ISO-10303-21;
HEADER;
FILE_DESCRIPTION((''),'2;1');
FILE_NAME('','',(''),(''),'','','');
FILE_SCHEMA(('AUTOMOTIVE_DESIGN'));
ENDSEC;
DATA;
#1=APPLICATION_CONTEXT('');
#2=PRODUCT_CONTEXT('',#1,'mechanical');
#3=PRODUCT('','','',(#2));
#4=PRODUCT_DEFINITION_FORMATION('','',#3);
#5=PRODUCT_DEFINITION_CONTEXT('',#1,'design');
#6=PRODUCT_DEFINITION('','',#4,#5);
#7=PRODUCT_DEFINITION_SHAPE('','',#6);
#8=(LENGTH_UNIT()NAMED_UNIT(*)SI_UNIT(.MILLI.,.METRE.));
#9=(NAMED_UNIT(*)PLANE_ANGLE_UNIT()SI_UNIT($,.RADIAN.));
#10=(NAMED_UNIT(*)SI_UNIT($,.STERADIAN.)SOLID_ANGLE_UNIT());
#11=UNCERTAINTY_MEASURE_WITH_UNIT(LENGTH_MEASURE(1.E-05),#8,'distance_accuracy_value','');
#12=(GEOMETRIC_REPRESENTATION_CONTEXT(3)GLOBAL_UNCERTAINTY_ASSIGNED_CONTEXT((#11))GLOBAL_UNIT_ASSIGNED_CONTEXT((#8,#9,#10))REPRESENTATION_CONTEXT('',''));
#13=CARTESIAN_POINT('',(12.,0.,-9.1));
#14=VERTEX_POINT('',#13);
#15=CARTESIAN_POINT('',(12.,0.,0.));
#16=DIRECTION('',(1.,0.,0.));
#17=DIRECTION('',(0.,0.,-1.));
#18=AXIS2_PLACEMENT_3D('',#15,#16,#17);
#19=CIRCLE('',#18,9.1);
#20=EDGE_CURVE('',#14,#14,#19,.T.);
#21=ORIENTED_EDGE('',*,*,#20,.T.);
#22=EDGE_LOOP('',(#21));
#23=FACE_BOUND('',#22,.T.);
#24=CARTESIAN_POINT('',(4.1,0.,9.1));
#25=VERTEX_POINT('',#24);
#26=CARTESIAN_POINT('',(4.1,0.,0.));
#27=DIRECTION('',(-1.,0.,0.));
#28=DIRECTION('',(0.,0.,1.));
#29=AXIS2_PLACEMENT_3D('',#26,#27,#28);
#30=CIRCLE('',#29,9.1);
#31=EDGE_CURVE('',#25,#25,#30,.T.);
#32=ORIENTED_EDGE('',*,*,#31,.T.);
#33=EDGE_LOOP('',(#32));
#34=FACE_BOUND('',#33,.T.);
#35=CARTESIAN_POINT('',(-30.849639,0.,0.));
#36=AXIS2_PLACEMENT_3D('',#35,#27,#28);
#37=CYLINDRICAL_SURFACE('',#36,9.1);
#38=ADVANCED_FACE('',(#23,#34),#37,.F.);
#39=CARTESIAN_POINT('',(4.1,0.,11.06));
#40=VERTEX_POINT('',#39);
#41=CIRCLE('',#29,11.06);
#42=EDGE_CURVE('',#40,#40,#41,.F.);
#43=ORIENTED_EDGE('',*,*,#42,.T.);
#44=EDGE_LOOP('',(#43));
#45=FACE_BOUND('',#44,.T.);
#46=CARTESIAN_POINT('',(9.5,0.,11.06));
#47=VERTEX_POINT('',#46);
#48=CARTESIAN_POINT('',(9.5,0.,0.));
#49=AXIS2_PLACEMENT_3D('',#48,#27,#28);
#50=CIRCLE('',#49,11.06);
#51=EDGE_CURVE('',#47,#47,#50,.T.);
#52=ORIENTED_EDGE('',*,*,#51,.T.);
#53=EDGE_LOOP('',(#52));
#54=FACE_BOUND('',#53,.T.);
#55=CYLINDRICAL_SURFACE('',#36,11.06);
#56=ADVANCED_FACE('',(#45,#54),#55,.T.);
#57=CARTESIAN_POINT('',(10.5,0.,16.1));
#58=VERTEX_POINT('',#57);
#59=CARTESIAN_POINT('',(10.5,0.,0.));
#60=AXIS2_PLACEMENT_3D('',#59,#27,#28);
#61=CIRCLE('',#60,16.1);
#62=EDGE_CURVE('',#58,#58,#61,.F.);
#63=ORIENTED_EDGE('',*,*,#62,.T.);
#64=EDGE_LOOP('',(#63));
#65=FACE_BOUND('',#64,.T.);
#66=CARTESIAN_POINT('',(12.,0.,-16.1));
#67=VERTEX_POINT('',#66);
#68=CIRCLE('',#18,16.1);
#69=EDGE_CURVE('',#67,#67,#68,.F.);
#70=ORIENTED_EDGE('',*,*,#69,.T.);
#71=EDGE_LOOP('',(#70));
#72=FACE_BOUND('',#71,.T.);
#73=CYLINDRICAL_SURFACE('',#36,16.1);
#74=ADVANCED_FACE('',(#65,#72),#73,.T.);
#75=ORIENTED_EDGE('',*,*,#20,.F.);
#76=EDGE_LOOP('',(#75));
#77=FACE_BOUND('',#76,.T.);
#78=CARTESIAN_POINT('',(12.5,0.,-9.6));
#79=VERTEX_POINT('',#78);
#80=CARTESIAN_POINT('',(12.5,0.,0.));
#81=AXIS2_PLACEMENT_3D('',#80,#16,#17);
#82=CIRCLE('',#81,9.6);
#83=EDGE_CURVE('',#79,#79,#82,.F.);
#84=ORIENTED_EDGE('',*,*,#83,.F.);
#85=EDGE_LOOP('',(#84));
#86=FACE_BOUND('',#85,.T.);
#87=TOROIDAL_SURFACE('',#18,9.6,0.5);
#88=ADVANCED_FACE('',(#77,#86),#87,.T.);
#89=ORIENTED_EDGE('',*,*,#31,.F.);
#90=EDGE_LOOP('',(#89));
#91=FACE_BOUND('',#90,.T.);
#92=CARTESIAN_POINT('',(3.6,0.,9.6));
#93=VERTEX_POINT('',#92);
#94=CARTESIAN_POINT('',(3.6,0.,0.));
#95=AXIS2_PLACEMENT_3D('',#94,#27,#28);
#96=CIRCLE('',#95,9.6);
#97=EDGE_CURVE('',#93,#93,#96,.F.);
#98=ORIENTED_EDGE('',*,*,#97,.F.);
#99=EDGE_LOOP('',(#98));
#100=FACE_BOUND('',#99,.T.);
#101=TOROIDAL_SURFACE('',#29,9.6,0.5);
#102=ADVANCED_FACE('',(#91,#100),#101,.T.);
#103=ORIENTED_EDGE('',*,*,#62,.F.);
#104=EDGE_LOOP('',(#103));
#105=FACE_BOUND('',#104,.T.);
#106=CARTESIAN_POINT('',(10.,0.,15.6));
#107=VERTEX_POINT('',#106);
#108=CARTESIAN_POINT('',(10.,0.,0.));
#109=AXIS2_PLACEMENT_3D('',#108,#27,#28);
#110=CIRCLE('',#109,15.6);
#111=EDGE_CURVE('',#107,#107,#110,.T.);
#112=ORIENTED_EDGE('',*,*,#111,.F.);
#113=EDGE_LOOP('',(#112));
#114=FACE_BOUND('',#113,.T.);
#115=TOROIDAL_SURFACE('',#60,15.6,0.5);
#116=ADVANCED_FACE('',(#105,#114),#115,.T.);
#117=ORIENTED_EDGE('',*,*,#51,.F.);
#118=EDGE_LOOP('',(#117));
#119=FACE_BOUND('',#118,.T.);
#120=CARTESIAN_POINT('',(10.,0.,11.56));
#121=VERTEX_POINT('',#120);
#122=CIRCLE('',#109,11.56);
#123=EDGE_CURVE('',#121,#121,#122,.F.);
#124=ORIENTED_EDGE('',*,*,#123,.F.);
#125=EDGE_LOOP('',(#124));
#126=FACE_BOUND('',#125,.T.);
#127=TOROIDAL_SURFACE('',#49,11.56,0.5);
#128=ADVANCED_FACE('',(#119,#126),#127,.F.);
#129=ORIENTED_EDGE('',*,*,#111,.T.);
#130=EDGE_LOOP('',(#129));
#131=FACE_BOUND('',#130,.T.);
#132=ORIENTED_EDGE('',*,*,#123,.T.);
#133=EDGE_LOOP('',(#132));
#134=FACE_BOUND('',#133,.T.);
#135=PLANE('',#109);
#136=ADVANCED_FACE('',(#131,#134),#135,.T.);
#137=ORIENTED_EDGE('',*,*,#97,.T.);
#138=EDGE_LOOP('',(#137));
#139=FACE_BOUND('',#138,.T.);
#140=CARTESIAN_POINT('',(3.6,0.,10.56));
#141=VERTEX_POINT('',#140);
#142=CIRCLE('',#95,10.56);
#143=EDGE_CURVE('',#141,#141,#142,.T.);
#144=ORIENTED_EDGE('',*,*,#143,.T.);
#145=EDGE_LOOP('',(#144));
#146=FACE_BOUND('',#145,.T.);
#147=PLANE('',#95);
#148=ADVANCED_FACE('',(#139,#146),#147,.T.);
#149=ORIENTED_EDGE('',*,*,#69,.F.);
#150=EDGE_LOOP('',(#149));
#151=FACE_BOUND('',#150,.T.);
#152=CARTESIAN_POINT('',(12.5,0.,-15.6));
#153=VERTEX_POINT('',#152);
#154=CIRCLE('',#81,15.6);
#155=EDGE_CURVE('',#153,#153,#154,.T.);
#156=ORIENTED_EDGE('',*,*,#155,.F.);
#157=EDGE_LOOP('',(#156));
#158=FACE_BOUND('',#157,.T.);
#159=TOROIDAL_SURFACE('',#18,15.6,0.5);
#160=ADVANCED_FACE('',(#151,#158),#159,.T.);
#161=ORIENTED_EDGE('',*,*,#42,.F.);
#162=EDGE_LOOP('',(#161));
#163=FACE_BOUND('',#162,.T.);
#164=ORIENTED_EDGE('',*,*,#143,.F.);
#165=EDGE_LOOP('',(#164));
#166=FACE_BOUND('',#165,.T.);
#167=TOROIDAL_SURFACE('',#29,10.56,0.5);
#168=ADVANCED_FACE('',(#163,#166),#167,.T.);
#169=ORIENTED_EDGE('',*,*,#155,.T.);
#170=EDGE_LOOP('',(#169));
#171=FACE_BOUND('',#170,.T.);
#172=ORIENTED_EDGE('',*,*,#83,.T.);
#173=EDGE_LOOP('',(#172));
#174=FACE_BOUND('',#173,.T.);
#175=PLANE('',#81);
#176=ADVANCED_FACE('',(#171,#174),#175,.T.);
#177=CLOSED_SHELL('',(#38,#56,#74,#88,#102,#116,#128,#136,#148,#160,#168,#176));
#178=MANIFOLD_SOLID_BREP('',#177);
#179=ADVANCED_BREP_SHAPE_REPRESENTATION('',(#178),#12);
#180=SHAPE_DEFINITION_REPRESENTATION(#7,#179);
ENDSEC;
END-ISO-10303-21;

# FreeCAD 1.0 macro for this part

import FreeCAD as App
import Part
import Sketcher

V = App.Vector


def edges_at(feature, points):
    """Names of the edges that pass closest to the given points."""
    edges = feature.Shape.Edges
    near = lambda p: min(range(len(edges)), key=lambda i: edges[i].distToShape(Part.Vertex(*p))[0])
    return sorted({f"Edge{near(p) + 1}" for p in points})


def add_polygon(sketch, points):
    """Adds a closed chain of lines whose ends are joined by coincident constraints."""
    first, n = sketch.GeometryCount, len(points)
    for a, b in zip(points, points[1:] + points[:1]):
        sketch.addGeometry(Part.LineSegment(App.Vector(*a, 0), App.Vector(*b, 0)), False)
    for i in range(n):
        sketch.addConstraint(Sketcher.Constraint("Coincident", first + i, 2, first + (i + 1) % n, 1))

doc = App.newDocument("Part")
body = doc.addObject("PartDesign::Body", "Body")

sketch1 = body.newObject("Sketcher::SketchObject", "Sketch")
sketch1.AttachmentSupport = (doc.getObject("XY_Plane"), [""])
sketch1.MapMode = "FlatFace"
add_polygon(sketch1, [(12.5, 16.1), (10, 16.1), (10, 11.06), (3.6, 11.06), (3.6, 9.1), (12.5, 9.1)])
sketch1.addConstraint([
    Sketcher.Constraint("Horizontal", 0),
    Sketcher.Constraint("Vertical", 1),
    Sketcher.Constraint("Horizontal", 2),
    Sketcher.Constraint("Vertical", 3),
    Sketcher.Constraint("Horizontal", 4),
    Sketcher.Constraint("Vertical", 5),
    Sketcher.Constraint("DistanceY", 5, 1, 5, 2, 7.0),
    Sketcher.Constraint("DistanceX", 0, 2, 0, 1, 2.5),
    Sketcher.Constraint("DistanceX", 2, 2, 2, 1, 6.4),
    Sketcher.Constraint("DistanceX", -1, 1, 0, 2, 10.0),
    Sketcher.Constraint("DistanceY", 1, 2, 1, 1, 5.04),
    Sketcher.Constraint("DistanceY", -1, 1, 0, 2, 16.1),
])
revolution = body.newObject("PartDesign::Revolution", "Revolution")
revolution.Profile = sketch1
revolution.ReferenceAxis = (sketch1, ["H_Axis"])
revolution.Angle = 360
doc.recompute()

fillet = body.newObject("PartDesign::Fillet", "Fillet")
fillet.Base = (revolution, edges_at(revolution, [
    (10, 0, -16.1),
    (12.5, 0, -16.1),
    (12.5, 0, -9.1),
    (3.6, 0, -9.1),
    (3.6, 0, -11.06),
    (10, 0, -11.06),
]))
fillet.Radius = 0.5

doc.recompute()
